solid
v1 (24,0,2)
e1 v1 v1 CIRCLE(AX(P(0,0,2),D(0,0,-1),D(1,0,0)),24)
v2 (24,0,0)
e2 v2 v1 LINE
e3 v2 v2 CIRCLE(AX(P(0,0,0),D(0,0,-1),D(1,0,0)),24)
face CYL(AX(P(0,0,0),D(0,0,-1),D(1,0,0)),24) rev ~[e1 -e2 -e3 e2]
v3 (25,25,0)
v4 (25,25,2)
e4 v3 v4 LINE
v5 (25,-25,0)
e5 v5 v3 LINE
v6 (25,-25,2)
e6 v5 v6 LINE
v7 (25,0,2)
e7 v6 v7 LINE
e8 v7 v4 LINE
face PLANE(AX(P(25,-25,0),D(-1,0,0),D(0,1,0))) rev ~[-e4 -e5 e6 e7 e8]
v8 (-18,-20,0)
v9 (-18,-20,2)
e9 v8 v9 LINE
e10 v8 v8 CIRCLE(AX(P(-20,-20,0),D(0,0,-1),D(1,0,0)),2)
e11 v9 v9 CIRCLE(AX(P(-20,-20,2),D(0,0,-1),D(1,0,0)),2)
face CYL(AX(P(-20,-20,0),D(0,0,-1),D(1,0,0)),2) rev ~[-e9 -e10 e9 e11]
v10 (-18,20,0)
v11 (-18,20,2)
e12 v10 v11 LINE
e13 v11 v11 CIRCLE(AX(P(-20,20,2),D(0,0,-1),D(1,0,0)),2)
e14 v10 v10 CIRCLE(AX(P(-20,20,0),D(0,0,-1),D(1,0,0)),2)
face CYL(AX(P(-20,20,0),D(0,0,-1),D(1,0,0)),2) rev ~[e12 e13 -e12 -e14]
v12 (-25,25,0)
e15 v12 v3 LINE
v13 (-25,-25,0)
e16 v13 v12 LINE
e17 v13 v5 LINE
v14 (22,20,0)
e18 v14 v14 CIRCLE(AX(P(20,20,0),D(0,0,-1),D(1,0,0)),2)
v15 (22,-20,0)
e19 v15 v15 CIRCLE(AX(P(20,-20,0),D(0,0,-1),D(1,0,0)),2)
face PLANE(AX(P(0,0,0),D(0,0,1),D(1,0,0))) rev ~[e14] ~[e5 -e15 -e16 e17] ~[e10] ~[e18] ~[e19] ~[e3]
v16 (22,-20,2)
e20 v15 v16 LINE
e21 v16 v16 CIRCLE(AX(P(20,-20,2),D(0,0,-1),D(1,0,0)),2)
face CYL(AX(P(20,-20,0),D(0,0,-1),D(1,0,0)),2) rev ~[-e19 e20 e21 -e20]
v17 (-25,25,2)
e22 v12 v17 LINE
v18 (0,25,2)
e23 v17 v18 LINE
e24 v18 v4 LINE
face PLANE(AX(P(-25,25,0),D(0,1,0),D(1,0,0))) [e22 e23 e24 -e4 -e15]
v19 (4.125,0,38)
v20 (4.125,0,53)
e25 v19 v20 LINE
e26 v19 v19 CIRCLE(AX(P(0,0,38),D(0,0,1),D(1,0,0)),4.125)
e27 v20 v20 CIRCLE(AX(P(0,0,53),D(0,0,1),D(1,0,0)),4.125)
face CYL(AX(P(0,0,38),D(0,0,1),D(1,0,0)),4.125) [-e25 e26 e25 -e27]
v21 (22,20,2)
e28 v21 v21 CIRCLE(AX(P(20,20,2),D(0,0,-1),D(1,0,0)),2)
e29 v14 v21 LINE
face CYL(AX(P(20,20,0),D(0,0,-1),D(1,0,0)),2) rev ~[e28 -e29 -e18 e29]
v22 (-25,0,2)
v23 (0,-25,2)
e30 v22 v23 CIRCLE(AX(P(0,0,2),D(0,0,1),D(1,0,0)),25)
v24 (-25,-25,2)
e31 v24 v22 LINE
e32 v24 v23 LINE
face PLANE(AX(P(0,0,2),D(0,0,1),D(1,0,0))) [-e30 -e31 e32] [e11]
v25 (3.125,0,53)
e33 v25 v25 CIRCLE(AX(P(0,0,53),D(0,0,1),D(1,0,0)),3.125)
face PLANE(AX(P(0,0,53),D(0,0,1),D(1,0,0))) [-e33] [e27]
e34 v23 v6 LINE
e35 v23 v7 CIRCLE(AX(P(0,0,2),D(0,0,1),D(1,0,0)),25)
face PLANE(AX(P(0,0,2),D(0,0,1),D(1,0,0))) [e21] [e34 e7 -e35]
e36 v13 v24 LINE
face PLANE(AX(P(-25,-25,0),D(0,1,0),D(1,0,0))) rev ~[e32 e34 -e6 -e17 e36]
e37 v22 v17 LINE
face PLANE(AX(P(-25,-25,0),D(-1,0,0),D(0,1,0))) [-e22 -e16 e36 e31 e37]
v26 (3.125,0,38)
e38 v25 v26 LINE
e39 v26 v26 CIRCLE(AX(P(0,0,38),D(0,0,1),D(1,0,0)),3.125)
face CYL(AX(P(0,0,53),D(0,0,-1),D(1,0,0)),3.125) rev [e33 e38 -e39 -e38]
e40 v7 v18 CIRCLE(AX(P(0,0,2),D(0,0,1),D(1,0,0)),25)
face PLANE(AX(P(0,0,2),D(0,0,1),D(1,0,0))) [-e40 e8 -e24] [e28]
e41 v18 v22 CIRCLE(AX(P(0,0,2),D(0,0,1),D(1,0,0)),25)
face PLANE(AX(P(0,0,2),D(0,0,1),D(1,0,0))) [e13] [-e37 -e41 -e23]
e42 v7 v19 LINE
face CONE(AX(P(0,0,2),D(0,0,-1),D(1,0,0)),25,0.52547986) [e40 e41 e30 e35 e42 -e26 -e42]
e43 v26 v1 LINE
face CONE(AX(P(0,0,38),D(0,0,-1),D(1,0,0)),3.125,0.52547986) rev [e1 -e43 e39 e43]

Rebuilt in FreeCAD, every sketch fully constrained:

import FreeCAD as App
import Part
import Sketcher

V = App.Vector


def add_polygon(sketch, points):
    """Adds a closed chain of lines whose ends are joined by coincident constraints."""
    first, n = sketch.GeometryCount, len(points)
    for a, b in zip(points, points[1:] + points[:1]):
        sketch.addGeometry(Part.LineSegment(App.Vector(*a, 0), App.Vector(*b, 0)), False)
    for i in range(n):
        sketch.addConstraint(Sketcher.Constraint("Coincident", first + i, 2, first + (i + 1) % n, 1))

doc = App.newDocument("Part")
body = doc.addObject("PartDesign::Body", "Body")

sketch1 = body.newObject("Sketcher::SketchObject", "Sketch")
sketch1.AttachmentSupport = (doc.getObject("XY_Plane"), [""])
sketch1.MapMode = "FlatFace"
add_polygon(sketch1, [(-25, 25), (-25, -25), (25, -25), (25, 25)])
sketch1.addConstraint([
    Sketcher.Constraint("Vertical", 0),
    Sketcher.Constraint("Horizontal", 1),
    Sketcher.Constraint("Vertical", 2),
    Sketcher.Constraint("Horizontal", 3),
    Sketcher.Constraint("Symmetric", 0, 2, 2, 2, -1, 1),
    Sketcher.Constraint("Equal", 3, 0),
    Sketcher.Constraint("DistanceX", 1, 1, 1, 2, 50.0),
])
pad1 = body.newObject("PartDesign::Pad", "Pad")
pad1.Profile = sketch1
pad1.Length = 2

sketch2 = body.newObject("Sketcher::SketchObject", "Sketch001")
sketch2.AttachmentSupport = (doc.getObject("XY_Plane"), [""])
sketch2.MapMode = "FlatFace"
sketch2.addGeometry(Part.Circle(V(0, 0, 0), V(0, 0, 1), 24), False)
sketch2.addConstraint([
    Sketcher.Constraint("Coincident", 0, 3, -1, 1),
    Sketcher.Constraint("Diameter", 0, 48.0),
])
pocket1 = body.newObject("PartDesign::Pocket", "Pocket")
pocket1.Profile = sketch2
pocket1.Length = 25
pocket1.Reversed = True

sketch3 = body.newObject("Sketcher::SketchObject", "Sketch002")
sketch3.AttachmentSupport = (doc.getObject("XY_Plane"), [""])
sketch3.MapMode = "FlatFace"
sketch3.addGeometry([
    Part.Circle(V(-20, -20, 0), V(0, 0, 1), 2),
    Part.Circle(V(20, -20, 0), V(0, 0, 1), 2),
    Part.Circle(V(20, 20, 0), V(0, 0, 1), 2),
    Part.Circle(V(-20, 20, 0), V(0, 0, 1), 2),
], False)
sketch3.addConstraint([
    Sketcher.Constraint("Equal", 0, 1),
    Sketcher.Constraint("Equal", 1, 2),
    Sketcher.Constraint("Equal", 2, 3),
    Sketcher.Constraint("Symmetric", 0, 3, 2, 3, -1, 1),
    Sketcher.Constraint("Symmetric", 1, 3, 3, 3, -1, 1),
    Sketcher.Constraint("Symmetric", 0, 3, 1, 3, -2),
    Sketcher.Constraint("Diameter", 0, 4.0),
    Sketcher.Constraint("DistanceX", 0, 3, -1, 1, 20.0),
    Sketcher.Constraint("DistanceY", 0, 3, -1, 1, 20.0),
])
pocket2 = body.newObject("PartDesign::Pocket", "Pocket001")
pocket2.Profile = sketch3
pocket2.Type = "ThroughAll"
pocket2.Reversed = True

sketch4 = body.newObject("Sketcher::SketchObject", "Sketch003")
sketch4.AttachmentSupport = (doc.getObject("XZ_Plane"), [""])
sketch4.MapMode = "FlatFace"
add_polygon(sketch4, [(3.125, 38), (24, 2), (25, 2), (4.125, 38), (4.125, 53), (3.125, 53)])
sketch4.addConstraint([
    Sketcher.Constraint("Horizontal", 1),
    Sketcher.Constraint("Vertical", 3),
    Sketcher.Constraint("Horizontal", 4),
    Sketcher.Constraint("Vertical", 5),
    Sketcher.Constraint("Parallel", 0, 2),
    Sketcher.Constraint("Horizontal", 2, 2, 5, 2),
    Sketcher.Constraint("DistanceX", 1, 1, 1, 2, 1.0),
    Sketcher.Constraint("DistanceY", 3, 1, 3, 2, 15.0),
    Sketcher.Constraint("DistanceX", -1, 1, 0, 2, 24.0),
    Sketcher.Constraint("DistanceY", -1, 1, 0, 2, 2.0),
    Sketcher.Constraint("DistanceY", -1, 1, 2, 2, 38.0),
    Sketcher.Constraint("DistanceX", -1, 1, 2, 2, 4.125),
])
revolution = body.newObject("PartDesign::Revolution", "Revolution")
revolution.Profile = sketch4
revolution.ReferenceAxis = (sketch4, ["V_Axis"])
revolution.Angle = 360

doc.recompute()
